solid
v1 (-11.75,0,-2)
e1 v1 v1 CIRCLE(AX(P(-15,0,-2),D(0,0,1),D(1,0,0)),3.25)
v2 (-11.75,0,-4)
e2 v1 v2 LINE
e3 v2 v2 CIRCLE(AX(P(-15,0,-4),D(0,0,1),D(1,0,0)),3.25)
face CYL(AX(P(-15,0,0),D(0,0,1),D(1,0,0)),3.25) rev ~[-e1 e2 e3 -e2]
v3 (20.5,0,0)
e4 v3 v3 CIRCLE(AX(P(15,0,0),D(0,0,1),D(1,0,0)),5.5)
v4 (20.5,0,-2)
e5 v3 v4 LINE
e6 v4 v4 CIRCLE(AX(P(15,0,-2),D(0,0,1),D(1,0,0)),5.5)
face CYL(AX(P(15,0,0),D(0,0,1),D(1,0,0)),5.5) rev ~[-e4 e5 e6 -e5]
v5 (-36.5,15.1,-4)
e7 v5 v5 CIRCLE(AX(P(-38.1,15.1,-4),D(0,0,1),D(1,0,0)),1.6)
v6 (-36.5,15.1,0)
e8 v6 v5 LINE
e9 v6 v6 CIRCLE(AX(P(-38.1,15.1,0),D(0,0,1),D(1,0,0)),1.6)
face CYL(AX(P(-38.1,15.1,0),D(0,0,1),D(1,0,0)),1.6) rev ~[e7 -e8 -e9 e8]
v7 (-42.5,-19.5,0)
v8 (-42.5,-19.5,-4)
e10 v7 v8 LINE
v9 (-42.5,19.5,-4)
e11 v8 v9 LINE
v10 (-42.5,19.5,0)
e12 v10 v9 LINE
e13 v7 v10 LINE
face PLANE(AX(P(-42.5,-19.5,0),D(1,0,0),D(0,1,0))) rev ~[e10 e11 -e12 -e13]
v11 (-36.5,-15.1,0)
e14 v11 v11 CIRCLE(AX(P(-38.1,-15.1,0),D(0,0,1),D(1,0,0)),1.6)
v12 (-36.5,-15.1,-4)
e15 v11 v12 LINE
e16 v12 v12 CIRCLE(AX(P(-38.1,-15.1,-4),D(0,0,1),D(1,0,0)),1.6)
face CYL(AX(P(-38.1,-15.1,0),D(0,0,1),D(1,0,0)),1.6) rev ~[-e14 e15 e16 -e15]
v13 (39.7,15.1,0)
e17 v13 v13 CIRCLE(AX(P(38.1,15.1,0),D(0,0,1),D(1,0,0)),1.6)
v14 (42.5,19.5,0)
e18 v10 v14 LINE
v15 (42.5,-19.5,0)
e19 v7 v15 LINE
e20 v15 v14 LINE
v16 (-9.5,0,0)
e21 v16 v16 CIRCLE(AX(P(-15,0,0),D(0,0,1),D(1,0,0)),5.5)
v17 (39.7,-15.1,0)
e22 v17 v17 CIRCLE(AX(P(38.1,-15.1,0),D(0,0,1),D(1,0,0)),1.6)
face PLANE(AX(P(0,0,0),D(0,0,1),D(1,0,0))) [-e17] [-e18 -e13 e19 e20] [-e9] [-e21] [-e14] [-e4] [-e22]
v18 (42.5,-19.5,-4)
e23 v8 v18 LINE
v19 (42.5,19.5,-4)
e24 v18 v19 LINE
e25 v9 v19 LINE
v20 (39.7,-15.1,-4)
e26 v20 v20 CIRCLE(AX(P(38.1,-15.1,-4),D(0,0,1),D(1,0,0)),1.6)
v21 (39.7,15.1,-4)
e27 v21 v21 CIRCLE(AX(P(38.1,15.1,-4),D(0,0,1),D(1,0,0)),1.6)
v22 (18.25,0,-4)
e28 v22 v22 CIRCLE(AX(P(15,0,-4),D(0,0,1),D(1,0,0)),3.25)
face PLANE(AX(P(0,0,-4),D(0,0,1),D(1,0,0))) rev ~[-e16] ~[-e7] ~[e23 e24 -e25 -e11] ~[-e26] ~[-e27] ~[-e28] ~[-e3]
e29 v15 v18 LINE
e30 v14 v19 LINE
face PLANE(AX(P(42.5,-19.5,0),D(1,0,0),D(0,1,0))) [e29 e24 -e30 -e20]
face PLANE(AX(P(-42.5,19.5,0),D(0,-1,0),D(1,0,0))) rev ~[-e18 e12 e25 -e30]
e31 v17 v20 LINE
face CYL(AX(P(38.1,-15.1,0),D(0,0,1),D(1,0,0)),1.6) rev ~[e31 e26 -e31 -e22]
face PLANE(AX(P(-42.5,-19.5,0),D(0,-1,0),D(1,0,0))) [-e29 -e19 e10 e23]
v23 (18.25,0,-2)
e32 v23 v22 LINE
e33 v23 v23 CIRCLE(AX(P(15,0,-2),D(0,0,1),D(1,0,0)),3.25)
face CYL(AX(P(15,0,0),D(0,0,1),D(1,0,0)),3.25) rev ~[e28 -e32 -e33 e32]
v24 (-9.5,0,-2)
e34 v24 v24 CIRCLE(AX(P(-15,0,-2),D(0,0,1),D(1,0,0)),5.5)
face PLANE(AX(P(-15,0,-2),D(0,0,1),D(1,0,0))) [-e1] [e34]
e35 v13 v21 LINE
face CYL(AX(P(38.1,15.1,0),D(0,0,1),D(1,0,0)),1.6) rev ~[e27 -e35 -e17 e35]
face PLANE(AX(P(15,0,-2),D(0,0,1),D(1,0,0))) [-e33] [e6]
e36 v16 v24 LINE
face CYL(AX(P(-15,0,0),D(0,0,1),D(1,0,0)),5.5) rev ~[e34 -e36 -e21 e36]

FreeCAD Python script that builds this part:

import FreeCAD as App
import Part
import Sketcher
from FreeCAD import Vector

doc = App.newDocument("Part")
body = doc.addObject("PartDesign::Body", "Body")

# Sketch on XY plane
sketch1 = body.newObject("Sketcher::SketchObject", "Sketch")
sketch1.AttachmentSupport = (doc.getObject("XY_Plane"), [""])
sketch1.MapMode = "FlatFace"
sketch1.addGeometry([
    Part.LineSegment(Vector(-42, 20, 0), Vector(-42, -20, 0)),
    Part.LineSegment(Vector(-42, -20, 0), Vector(42, -20, 0)),
    Part.LineSegment(Vector(42, -20, 0), Vector(42, 20, 0)),
    Part.LineSegment(Vector(42, 20, 0), Vector(-42, 20, 0)),
], False)
sketch1.addConstraint([
    Sketcher.Constraint("Coincident", 0, 2, 1, 1),
    Sketcher.Constraint("Coincident", 1, 2, 2, 1),
    Sketcher.Constraint("Coincident", 2, 2, 3, 1),
    Sketcher.Constraint("Coincident", 3, 2, 0, 1),
    Sketcher.Constraint("Vertical", 0),
    Sketcher.Constraint("Horizontal", 1),
    Sketcher.Constraint("Vertical", 2),
    Sketcher.Constraint("Horizontal", 3),
    Sketcher.Constraint("Symmetric", 0, 2, 2, 2, -1, 1),
    Sketcher.Constraint("DistanceX", 1, 1, 1, 2, 85.0),
    Sketcher.Constraint("DistanceY", 0, 2, 0, 1, 39.0),
])
pad1 = body.newObject("PartDesign::Pad", "Pad")
pad1.Profile = sketch1
pad1.Length = 4
pad1.Reversed = True

# Sketch on XY plane
sketch2 = body.newObject("Sketcher::SketchObject", "Sketch001")
sketch2.AttachmentSupport = (doc.getObject("XY_Plane"), [""])
sketch2.MapMode = "FlatFace"
sketch2.addGeometry([
    Part.Circle(Vector(-38.1, 15.1, 0), Vector(0, 0, 1), 1.6),  # 0
    Part.Circle(Vector(-38.1, -15.1, 0), Vector(0, 0, 1), 1.6),  # 1
    Part.Circle(Vector(38.1, -15.1, 0), Vector(0, 0, 1), 1.6),  # 2
    Part.Circle(Vector(38.1, 15.1, 0), Vector(0, 0, 1), 1.6),  # 3
    Part.Circle(Vector(-15, 0, 0), Vector(0, 0, 1), 3.2),  # 4
    Part.Circle(Vector(15, 0, 0), Vector(0, 0, 1), 3.2),  # 5
], False)
sketch2.addConstraint([
    Sketcher.Constraint("Equal", 0, 1),
    Sketcher.Constraint("Equal", 1, 2),
    Sketcher.Constraint("Equal", 2, 3),
    Sketcher.Constraint("Equal", 4, 5),
    Sketcher.Constraint("Symmetric", 0, 3, 2, 3, -1, 1),
    Sketcher.Constraint("Symmetric", 1, 3, 3, 3, -1, 1),
    Sketcher.Constraint("Symmetric", 4, 3, 5, 3, -1, 1),
    Sketcher.Constraint("Symmetric", 1, 3, 2, 3, -2),
    Sketcher.Constraint("PointOnObject", 4, 3, -1),
    Sketcher.Constraint("Diameter", 0, 3.2),
    Sketcher.Constraint("Diameter", 4, 6.5),
    Sketcher.Constraint("DistanceX", 4, 3, -1, 1, 15.0),
    Sketcher.Constraint("DistanceX", 0, 3, -1, 1, 38.1),
    Sketcher.Constraint("DistanceY", -1, 1, 0, 3, 15.1),
])
pocket1 = body.newObject("PartDesign::Pocket", "Pocket")
pocket1.Profile = sketch2
pocket1.Length = 5

# Sketch on XY plane
sketch3 = body.newObject("Sketcher::SketchObject", "Sketch002")
sketch3.AttachmentSupport = (doc.getObject("XY_Plane"), [""])
sketch3.MapMode = "FlatFace"
sketch3.addGeometry([
    Part.Circle(Vector(-15, 0, 0), Vector(0, 0, 1), 6),
    Part.Circle(Vector(15, 0, 0), Vector(0, 0, 1), 6),
], False)
sketch3.addConstraint([
    Sketcher.Constraint("Equal", 0, 1),
    Sketcher.Constraint("Symmetric", 0, 3, 1, 3, -1, 1),
    Sketcher.Constraint("PointOnObject", 0, 3, -1),
    Sketcher.Constraint("Diameter", 0, 11.0),
    Sketcher.Constraint("DistanceX", 0, 3, -1, 1, 15.0),
])
pocket2 = body.newObject("PartDesign::Pocket", "Pocket001")
pocket2.Profile = sketch3
pocket2.Length = 2

doc.recompute()
